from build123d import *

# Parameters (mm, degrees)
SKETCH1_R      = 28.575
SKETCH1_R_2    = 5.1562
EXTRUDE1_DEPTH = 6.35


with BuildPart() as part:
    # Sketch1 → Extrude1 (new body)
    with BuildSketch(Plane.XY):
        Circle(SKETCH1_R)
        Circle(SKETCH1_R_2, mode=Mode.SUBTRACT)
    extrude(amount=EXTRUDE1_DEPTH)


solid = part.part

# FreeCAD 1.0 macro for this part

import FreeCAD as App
import Part
import Sketcher

V = App.Vector
Q = App.Units.Quantity

doc = App.newDocument("Part")
params = doc.addObject("Spreadsheet::Sheet", "Params")
for row, (alias, value) in enumerate([
    ("sketch1_diameter", "2.25 in"),
    ("sketch1_diameter2", "0.406 in"),
    ("pad1_length", "0.25 in"),
], start=1):
    params.set(f"A{row}", alias)
    params.set(f"B{row}", "=" + value)
    params.setAlias(f"B{row}", alias)

body = doc.addObject("PartDesign::Body", "Body")

sketch1 = body.newObject("Sketcher::SketchObject", "Sketch")
sketch1.AttachmentSupport = (doc.getObject("XY_Plane"), [""])
sketch1.MapMode = "FlatFace"
sketch1.addGeometry([
    Part.Circle(V(0, 0, 0), V(0, 0, 1), 29),
    Part.Circle(V(0, 0, 0), V(0, 0, 1), 5),
], False)
sketch1.addConstraint([
    Sketcher.Constraint("Coincident", 0, 3, -1, 1),
    Sketcher.Constraint("Coincident", 1, 3, -1, 1),
    Sketcher.Constraint("Diameter", 0, Q("2.25 in")),
    Sketcher.Constraint("Diameter", 1, Q("0.406 in")),
])
sketch1.setExpression("Constraints[2]", "Params.sketch1_diameter")
sketch1.setExpression("Constraints[3]", "Params.sketch1_diameter2")
pad1 = body.newObject("PartDesign::Pad", "Pad")
pad1.Profile = sketch1
pad1.setExpression("Length", "Params.pad1_length")

doc.recompute()
